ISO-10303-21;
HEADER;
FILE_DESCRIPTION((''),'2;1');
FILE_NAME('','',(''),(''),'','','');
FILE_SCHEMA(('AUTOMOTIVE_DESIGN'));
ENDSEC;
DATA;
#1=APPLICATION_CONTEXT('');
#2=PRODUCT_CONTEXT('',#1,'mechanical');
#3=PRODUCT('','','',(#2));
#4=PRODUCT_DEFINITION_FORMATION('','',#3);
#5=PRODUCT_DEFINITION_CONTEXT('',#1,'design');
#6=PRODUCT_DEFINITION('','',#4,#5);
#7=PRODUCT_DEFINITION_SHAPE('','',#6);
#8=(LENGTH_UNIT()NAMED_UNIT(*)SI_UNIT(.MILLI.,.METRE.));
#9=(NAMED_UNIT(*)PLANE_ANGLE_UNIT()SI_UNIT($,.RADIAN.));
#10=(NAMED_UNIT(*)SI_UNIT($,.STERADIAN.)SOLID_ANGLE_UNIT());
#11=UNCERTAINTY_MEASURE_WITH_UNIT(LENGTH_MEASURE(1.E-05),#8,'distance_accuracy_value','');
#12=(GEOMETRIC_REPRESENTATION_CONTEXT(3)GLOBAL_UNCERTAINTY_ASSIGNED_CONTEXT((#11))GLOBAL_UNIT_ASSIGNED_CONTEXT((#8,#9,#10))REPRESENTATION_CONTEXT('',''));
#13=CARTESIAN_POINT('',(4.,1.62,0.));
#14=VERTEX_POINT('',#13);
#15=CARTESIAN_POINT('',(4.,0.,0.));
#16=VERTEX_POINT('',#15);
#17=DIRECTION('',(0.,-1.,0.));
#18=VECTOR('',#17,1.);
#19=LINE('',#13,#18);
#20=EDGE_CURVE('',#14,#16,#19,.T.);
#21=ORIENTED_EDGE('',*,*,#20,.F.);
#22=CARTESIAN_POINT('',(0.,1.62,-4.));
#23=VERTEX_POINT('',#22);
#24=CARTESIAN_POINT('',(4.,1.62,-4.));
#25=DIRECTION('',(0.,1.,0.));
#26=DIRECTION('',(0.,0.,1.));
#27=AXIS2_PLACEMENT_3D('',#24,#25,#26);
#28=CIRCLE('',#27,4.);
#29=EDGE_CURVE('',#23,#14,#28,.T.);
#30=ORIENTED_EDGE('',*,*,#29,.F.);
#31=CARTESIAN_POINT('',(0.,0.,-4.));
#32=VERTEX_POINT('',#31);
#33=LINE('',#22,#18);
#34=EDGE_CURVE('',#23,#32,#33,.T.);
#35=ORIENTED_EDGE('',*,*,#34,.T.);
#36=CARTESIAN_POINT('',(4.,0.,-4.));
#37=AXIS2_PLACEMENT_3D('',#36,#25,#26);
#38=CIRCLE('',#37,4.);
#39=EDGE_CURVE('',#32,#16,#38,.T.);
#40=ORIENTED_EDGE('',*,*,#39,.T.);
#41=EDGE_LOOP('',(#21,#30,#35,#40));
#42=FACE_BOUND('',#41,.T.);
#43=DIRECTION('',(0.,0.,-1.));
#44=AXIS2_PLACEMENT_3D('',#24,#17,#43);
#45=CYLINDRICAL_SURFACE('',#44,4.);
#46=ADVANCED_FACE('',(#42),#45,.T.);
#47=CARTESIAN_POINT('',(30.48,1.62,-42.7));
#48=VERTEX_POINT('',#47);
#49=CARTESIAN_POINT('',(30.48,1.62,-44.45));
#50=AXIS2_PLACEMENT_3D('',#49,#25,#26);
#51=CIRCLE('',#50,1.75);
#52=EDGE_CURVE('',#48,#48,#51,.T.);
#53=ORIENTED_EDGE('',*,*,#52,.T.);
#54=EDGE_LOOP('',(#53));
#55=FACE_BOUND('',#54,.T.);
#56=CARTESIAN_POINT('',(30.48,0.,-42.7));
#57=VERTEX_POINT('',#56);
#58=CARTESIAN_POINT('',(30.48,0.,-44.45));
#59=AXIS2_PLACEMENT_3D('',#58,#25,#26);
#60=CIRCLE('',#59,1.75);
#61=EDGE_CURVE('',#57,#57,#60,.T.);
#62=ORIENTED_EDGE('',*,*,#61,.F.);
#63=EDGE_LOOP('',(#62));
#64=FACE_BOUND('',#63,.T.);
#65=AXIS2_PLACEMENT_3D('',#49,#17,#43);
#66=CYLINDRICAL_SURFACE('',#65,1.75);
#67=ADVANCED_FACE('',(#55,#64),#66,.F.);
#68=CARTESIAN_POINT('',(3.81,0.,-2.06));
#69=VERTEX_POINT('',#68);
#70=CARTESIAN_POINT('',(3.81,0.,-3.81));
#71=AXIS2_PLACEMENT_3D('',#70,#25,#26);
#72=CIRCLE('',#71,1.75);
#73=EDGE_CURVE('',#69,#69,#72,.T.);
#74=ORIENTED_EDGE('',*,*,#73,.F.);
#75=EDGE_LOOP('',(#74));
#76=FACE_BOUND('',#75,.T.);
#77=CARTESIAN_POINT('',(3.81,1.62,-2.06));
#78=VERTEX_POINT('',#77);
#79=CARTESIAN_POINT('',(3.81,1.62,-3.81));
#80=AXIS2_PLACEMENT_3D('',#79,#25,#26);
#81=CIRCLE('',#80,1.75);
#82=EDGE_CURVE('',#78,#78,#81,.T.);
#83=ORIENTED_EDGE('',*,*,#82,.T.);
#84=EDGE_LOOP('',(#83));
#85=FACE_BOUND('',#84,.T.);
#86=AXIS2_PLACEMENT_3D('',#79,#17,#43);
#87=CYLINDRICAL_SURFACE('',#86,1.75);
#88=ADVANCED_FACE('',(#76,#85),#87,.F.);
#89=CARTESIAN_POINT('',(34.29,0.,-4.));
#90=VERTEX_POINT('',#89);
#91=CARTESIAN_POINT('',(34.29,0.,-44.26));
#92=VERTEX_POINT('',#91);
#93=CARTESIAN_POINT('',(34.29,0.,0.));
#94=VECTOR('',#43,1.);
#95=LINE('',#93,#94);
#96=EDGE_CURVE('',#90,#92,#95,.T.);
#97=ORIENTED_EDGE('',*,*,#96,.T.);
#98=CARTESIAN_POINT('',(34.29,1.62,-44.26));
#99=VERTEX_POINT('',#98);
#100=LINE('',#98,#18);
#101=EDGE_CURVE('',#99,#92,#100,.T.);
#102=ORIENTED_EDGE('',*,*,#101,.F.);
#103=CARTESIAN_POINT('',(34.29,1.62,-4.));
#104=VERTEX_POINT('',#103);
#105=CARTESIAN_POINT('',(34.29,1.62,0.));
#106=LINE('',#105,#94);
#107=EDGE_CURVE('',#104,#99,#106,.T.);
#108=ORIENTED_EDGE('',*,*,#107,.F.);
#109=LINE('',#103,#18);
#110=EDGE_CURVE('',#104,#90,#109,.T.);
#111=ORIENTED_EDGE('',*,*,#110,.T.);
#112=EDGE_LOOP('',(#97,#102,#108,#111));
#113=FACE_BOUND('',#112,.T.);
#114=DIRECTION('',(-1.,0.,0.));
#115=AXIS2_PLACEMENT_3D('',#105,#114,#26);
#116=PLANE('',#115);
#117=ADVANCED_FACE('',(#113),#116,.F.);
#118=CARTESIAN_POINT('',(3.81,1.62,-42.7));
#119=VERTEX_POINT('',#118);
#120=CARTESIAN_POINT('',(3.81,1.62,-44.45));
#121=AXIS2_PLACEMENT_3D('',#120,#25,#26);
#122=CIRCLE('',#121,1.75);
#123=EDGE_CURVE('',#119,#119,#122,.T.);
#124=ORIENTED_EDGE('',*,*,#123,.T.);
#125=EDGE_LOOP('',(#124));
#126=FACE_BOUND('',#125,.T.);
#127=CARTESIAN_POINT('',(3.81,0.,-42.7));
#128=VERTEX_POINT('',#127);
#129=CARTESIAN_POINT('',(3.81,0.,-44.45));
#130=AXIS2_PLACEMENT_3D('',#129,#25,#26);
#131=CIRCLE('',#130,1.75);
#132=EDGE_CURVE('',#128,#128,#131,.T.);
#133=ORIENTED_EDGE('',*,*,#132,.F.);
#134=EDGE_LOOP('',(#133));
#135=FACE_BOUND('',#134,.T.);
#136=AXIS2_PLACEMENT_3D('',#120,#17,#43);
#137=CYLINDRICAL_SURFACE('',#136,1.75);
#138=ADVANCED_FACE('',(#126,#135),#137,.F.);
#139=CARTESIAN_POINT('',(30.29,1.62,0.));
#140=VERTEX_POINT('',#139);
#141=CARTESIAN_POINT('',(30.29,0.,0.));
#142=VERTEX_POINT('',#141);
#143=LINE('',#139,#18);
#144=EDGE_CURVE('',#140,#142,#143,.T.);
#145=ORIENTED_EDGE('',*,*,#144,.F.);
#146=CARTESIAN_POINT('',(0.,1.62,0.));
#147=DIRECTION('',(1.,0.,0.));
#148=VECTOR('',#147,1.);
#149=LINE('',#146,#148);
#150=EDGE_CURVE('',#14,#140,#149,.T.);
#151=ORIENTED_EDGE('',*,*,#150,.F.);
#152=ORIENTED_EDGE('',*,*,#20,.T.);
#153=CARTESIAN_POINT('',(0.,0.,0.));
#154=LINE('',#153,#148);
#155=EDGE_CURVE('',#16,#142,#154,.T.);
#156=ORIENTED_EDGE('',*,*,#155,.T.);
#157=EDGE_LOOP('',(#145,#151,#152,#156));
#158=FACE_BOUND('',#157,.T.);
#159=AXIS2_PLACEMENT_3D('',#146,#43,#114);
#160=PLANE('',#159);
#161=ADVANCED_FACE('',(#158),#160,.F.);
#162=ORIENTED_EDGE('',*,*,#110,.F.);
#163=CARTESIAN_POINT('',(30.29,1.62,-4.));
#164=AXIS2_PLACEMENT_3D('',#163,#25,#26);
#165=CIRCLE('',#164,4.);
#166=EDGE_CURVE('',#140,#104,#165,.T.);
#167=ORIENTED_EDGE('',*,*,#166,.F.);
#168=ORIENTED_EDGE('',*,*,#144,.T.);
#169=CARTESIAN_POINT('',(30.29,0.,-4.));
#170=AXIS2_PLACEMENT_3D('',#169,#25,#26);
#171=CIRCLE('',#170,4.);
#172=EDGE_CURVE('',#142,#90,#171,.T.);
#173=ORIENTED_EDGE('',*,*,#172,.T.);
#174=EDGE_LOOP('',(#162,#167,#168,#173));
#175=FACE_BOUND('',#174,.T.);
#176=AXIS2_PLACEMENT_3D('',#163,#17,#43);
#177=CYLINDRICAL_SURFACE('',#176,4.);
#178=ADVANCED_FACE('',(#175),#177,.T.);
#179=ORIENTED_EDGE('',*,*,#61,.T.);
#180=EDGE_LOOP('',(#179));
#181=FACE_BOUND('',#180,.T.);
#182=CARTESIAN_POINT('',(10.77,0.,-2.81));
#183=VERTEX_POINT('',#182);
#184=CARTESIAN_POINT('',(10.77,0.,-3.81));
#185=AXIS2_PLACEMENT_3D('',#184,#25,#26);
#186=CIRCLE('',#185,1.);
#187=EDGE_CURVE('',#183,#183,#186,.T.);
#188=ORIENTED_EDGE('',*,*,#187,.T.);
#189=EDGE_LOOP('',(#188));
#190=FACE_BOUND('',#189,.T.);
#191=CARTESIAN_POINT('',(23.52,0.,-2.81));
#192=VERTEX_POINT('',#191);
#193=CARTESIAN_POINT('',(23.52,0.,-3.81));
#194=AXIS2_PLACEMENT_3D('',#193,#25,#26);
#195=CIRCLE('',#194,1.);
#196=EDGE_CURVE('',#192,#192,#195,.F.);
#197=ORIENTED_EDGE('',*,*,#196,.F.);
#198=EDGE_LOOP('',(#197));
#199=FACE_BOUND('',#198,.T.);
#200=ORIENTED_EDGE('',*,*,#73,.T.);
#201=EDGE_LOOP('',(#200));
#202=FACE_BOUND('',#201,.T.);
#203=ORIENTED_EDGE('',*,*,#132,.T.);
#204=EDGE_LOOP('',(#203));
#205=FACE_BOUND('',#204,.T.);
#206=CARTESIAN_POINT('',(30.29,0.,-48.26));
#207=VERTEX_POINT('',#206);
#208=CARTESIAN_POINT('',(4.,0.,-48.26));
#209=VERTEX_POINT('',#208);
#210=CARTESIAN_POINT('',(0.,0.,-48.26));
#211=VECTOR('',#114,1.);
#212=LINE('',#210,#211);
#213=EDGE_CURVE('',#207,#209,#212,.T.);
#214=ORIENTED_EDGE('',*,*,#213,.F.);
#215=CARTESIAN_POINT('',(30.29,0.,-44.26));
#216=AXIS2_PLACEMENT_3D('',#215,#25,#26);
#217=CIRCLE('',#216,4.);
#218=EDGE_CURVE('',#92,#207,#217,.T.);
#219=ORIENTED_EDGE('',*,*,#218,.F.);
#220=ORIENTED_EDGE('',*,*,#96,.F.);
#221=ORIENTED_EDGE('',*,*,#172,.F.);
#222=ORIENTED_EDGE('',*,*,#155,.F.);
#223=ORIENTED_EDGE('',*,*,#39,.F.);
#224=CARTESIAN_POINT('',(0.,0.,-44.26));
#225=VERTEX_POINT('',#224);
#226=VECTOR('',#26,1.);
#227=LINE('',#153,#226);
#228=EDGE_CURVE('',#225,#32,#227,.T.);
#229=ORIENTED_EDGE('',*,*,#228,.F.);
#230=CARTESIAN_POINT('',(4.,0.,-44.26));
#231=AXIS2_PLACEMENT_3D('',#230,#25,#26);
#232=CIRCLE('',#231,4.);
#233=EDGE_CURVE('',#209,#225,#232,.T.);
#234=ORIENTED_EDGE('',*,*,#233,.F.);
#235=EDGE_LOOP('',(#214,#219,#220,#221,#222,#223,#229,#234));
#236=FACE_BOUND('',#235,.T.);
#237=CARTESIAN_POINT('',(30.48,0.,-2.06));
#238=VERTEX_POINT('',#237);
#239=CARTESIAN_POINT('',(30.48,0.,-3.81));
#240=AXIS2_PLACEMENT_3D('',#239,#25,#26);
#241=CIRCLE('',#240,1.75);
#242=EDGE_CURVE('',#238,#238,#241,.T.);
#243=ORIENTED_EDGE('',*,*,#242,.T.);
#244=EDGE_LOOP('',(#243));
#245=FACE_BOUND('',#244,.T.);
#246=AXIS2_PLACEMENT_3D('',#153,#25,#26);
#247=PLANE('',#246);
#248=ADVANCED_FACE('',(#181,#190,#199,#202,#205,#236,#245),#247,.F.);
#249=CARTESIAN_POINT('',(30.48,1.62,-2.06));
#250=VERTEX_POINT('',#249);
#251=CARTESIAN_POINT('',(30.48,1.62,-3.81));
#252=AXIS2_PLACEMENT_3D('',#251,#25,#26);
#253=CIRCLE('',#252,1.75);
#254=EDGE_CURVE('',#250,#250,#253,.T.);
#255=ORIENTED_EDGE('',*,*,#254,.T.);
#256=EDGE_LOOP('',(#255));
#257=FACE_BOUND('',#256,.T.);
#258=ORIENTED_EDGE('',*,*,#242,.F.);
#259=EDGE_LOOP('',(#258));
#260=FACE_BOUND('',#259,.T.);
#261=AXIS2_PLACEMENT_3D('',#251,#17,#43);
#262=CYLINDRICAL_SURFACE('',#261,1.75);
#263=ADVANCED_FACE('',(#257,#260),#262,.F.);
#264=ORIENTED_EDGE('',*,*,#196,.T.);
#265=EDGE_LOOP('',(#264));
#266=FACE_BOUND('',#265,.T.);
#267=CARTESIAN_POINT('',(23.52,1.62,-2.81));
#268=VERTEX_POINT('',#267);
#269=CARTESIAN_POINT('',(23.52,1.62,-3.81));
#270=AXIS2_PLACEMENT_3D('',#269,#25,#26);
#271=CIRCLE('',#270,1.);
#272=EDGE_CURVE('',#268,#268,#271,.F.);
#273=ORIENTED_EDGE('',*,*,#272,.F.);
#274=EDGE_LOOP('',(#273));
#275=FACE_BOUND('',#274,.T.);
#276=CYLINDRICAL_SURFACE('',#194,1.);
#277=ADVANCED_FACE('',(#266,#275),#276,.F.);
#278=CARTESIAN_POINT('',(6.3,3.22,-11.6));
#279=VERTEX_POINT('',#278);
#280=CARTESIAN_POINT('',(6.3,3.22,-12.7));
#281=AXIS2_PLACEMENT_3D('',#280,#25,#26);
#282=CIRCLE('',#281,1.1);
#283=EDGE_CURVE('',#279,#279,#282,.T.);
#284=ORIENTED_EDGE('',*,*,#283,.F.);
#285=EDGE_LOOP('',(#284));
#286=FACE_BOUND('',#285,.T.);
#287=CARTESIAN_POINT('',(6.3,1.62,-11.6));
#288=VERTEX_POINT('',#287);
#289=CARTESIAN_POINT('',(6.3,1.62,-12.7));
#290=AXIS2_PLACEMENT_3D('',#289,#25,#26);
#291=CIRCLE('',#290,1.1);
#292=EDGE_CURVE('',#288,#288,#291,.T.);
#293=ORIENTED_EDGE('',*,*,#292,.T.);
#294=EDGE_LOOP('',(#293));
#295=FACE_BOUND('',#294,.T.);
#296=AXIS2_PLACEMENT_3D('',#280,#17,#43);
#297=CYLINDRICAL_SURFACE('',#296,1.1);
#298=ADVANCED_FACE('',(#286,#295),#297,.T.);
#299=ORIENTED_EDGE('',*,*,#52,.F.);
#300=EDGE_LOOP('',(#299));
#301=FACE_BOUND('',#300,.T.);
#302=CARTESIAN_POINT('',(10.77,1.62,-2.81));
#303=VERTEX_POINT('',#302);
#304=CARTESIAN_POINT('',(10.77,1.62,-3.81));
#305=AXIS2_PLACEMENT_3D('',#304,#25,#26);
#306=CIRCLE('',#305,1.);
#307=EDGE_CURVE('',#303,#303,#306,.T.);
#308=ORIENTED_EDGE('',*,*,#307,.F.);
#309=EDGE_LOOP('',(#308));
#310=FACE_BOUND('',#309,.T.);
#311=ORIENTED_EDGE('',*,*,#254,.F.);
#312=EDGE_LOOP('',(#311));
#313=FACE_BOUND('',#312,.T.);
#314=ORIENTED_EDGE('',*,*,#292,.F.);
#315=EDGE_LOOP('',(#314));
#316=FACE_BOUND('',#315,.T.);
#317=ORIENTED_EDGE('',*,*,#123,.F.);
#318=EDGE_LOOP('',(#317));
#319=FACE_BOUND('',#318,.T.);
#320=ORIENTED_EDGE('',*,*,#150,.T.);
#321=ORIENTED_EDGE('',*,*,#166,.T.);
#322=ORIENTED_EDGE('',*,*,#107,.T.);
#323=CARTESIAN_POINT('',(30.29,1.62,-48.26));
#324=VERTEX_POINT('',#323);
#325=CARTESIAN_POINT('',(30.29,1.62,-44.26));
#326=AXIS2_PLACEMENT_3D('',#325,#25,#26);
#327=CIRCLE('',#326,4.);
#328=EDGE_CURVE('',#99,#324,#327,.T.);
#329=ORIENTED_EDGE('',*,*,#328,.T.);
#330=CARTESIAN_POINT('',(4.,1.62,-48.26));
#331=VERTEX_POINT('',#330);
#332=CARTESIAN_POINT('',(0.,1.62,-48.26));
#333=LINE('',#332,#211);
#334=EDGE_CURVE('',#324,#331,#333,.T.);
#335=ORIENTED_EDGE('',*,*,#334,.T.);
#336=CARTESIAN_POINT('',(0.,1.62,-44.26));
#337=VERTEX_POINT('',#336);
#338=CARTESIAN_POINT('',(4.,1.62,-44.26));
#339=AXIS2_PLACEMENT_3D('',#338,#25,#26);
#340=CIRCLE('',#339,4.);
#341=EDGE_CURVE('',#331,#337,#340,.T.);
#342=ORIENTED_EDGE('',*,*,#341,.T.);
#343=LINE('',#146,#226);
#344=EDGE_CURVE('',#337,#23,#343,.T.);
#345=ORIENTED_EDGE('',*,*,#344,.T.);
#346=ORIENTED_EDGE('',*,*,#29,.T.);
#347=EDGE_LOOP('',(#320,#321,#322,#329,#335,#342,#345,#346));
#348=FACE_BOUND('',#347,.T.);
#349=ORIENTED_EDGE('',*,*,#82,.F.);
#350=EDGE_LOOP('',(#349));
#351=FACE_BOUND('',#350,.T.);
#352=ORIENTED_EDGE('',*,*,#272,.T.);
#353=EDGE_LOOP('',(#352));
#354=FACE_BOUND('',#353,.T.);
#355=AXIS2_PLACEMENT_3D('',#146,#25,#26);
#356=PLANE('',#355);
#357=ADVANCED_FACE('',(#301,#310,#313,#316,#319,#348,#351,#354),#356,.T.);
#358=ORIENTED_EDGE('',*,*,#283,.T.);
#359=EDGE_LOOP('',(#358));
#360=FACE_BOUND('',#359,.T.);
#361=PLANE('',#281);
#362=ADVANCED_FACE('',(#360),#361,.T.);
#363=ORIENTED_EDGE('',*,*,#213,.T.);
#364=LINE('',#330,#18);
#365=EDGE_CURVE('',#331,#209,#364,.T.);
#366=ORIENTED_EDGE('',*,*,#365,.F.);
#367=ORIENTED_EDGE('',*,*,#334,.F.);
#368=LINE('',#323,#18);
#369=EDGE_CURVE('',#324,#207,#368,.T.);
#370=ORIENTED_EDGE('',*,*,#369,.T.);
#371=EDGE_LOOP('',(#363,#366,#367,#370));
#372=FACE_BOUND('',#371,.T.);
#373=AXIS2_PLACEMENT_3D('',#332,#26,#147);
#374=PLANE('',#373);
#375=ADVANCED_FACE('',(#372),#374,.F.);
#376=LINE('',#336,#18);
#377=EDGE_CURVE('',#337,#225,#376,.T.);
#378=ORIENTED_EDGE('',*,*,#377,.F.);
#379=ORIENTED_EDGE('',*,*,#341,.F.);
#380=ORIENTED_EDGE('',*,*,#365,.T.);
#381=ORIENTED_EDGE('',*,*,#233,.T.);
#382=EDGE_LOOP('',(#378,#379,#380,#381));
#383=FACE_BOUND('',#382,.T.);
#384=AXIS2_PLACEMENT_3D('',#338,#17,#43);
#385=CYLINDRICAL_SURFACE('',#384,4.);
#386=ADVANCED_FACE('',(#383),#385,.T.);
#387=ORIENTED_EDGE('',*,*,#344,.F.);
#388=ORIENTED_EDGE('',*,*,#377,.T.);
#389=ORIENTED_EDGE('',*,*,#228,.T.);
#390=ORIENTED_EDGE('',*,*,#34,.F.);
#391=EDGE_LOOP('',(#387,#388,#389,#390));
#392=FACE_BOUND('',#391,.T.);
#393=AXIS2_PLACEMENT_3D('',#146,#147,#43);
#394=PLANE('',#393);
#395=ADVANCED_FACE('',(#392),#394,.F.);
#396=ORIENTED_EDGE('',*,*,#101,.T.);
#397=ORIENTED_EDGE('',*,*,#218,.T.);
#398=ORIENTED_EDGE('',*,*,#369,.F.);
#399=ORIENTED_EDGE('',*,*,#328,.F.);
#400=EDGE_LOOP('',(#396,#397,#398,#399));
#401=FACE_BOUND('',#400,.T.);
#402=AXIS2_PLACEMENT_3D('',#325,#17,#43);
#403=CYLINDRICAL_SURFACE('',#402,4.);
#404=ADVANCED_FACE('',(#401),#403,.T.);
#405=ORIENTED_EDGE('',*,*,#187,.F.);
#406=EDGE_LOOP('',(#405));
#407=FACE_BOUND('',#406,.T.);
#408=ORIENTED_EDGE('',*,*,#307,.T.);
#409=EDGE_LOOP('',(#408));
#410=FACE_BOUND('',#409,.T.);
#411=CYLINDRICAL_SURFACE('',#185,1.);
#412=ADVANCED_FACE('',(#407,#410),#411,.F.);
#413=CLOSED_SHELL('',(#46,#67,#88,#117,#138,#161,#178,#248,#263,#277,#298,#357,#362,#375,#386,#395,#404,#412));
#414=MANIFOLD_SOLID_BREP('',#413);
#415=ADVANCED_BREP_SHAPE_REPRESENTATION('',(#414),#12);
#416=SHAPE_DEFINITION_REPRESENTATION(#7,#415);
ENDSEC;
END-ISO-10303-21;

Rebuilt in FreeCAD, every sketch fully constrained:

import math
import FreeCAD as App
import Part
import Sketcher

V = App.Vector
Q = App.Units.Quantity

doc = App.newDocument("Part")
body = doc.addObject("PartDesign::Body", "Body")

# Sketch on XZ plane
sketch1 = body.newObject("Sketcher::SketchObject", "Sketch")
sketch1.AttachmentSupport = (doc.getObject("XZ_Plane"), [""])
sketch1.MapMode = "FlatFace"
sketch1.addGeometry(Part.LineSegment(V(30.29, -48.26, 0), V(4, -48.26, 0)), False)
sketch1.addGeometry(Part.ArcOfCircle(Part.Circle(V(4, -44.26, 0), V(0, 0, 1), 4), math.radians(180), math.radians(270)), False)
sketch1.addGeometry(Part.LineSegment(V(0, -44.26, 0), V(0, -4, 0)), False)
sketch1.addGeometry(Part.ArcOfCircle(Part.Circle(V(4, -4, 0), V(0, 0, 1), 4), math.radians(90), math.radians(180)), False)
sketch1.addGeometry(Part.LineSegment(V(4, 0, 0), V(30.29, 0, 0)), False)
sketch1.addGeometry(Part.ArcOfCircle(Part.Circle(V(30.29, -4, 0), V(0, 0, 1), 4), math.radians(0), math.radians(90)), False)
sketch1.addGeometry(Part.LineSegment(V(34.29, -4, 0), V(34.29, -44.26, 0)), False)
sketch1.addGeometry(Part.ArcOfCircle(Part.Circle(V(30.29, -44.26, 0), V(0, 0, 1), 4), math.radians(-90), math.radians(0)), False)
sketch1.addGeometry(Part.Circle(V(3.81, -3.81, 0), V(0, 0, 1), 1.75), False)
sketch1.addGeometry(Part.Circle(V(30.48, -3.81, 0), V(0, 0, 1), 1.75), False)
sketch1.addGeometry(Part.Circle(V(3.81, -44.45, 0), V(0, 0, 1), 1.75), False)
sketch1.addGeometry(Part.Circle(V(30.48, -44.45, 0), V(0, 0, 1), 1.75), False)
sketch1.addConstraint(Sketcher.Constraint("Tangent", 0, 2, 1, 2))
sketch1.addConstraint(Sketcher.Constraint("Tangent", 1, 1, 2, 1))
sketch1.addConstraint(Sketcher.Constraint("Tangent", 2, 2, 3, 2))
sketch1.addConstraint(Sketcher.Constraint("Tangent", 3, 1, 4, 1))
sketch1.addConstraint(Sketcher.Constraint("Tangent", 4, 2, 5, 2))
sketch1.addConstraint(Sketcher.Constraint("Tangent", 5, 1, 6, 1))
sketch1.addConstraint(Sketcher.Constraint("Tangent", 6, 2, 7, 2))
sketch1.addConstraint(Sketcher.Constraint("Tangent", 7, 1, 0, 1))
sketch1.addConstraint(Sketcher.Constraint("Horizontal", 0))
sketch1.addConstraint(Sketcher.Constraint("Vertical", 2))
sketch1.addConstraint(Sketcher.Constraint("Horizontal", 4))
sketch1.addConstraint(Sketcher.Constraint("Vertical", 6))
sketch1.addConstraint(Sketcher.Constraint("Equal", 1, 3))
sketch1.addConstraint(Sketcher.Constraint("Equal", 3, 5))
sketch1.addConstraint(Sketcher.Constraint("Equal", 5, 7))
sketch1.addConstraint(Sketcher.Constraint("Equal", 8, 9))
sketch1.addConstraint(Sketcher.Constraint("Equal", 9, 10))
sketch1.addConstraint(Sketcher.Constraint("Equal", 10, 11))
sketch1.addConstraint(Sketcher.Constraint("PointOnObject", 1, 1, -2))
sketch1.addConstraint(Sketcher.Constraint("PointOnObject", 3, 1, -1))
sketch1.addConstraint(Sketcher.Constraint("Horizontal", 8, 3, 9, 3))
sketch1.addConstraint(Sketcher.Constraint("Horizontal", 10, 3, 11, 3))
sketch1.addConstraint(Sketcher.Constraint("Vertical", 8, 3, 10, 3))
sketch1.addConstraint(Sketcher.Constraint("Vertical", 9, 3, 11, 3))
sketch1.addConstraint(Sketcher.Constraint("Radius", 1, Q("4 mm")))
sketch1.addConstraint(Sketcher.Constraint("Diameter", 8, Q("3.5 mm")))
sketch1.addConstraint(Sketcher.Constraint("DistanceX", 0, 2, 0, 1, Q("26.29 mm")))
sketch1.addConstraint(Sketcher.Constraint("DistanceY", 2, 1, 2, 2, Q("40.26 mm")))
sketch1.addConstraint(Sketcher.Constraint("DistanceX", -1, 1, 8, 3, Q("3.81 mm")))
sketch1.addConstraint(Sketcher.Constraint("DistanceY", 8, 3, -1, 1, Q("3.81 mm")))
sketch1.addConstraint(Sketcher.Constraint("DistanceX", -1, 1, 9, 3, Q("30.48 mm")))
sketch1.addConstraint(Sketcher.Constraint("DistanceY", 10, 3, -1, 1, Q("44.45 mm")))
pad1 = body.newObject("PartDesign::Pad", "Pad")
pad1.Profile = sketch1
pad1.Length = 1.62
pad1.Reversed = True

# Sketch on XZ plane
sketch2 = body.newObject("Sketcher::SketchObject", "Sketch001")
sketch2.AttachmentSupport = (doc.getObject("XZ_Plane"), [""])
sketch2.MapMode = "FlatFace"
sketch2.AttachmentOffset = App.Placement(V(0, 0, -1.62), App.Rotation())
sketch2.addGeometry(Part.Circle(V(23.52, -3.81, 0), V(0, 0, 1), 1), False)
sketch2.addGeometry(Part.Circle(V(10.77, -3.81, 0), V(0, 0, 1), 1), False)
sketch2.addConstraint(Sketcher.Constraint("Equal", 0, 1))
sketch2.addConstraint(Sketcher.Constraint("Horizontal", 0, 3, 1, 3))
sketch2.addConstraint(Sketcher.Constraint("Diameter", 0, Q("2 mm")))
sketch2.addConstraint(Sketcher.Constraint("DistanceX", -1, 1, 0, 3, Q("23.52 mm")))
sketch2.addConstraint(Sketcher.Constraint("DistanceY", 0, 3, -1, 1, Q("3.81 mm")))
sketch2.addConstraint(Sketcher.Constraint("DistanceX", -1, 1, 1, 3, Q("10.77 mm")))
pocket1 = body.newObject("PartDesign::Pocket", "Pocket")
pocket1.Profile = sketch2
pocket1.Length = 1.62
pocket1.Reversed = True

# Sketch on XZ plane
sketch3 = body.newObject("Sketcher::SketchObject", "Sketch002")
sketch3.AttachmentSupport = (doc.getObject("XZ_Plane"), [""])
sketch3.MapMode = "FlatFace"
sketch3.AttachmentOffset = App.Placement(V(0, 0, -1.62), App.Rotation())
sketch3.addGeometry(Part.Circle(V(6.3, -12.7, 0), V(0, 0, 1), 1.1), False)
sketch3.addConstraint(Sketcher.Constraint("Diameter", 0, Q("2.2 mm")))
sketch3.addConstraint(Sketcher.Constraint("DistanceX", -1, 1, 0, 3, Q("6.3 mm")))
sketch3.addConstraint(Sketcher.Constraint("DistanceY", 0, 3, -1, 1, Q("12.7 mm")))
pad2 = body.newObject("PartDesign::Pad", "Pad001")
pad2.Profile = sketch3
pad2.Length = 1.6
pad2.Reversed = True

doc.recompute()
